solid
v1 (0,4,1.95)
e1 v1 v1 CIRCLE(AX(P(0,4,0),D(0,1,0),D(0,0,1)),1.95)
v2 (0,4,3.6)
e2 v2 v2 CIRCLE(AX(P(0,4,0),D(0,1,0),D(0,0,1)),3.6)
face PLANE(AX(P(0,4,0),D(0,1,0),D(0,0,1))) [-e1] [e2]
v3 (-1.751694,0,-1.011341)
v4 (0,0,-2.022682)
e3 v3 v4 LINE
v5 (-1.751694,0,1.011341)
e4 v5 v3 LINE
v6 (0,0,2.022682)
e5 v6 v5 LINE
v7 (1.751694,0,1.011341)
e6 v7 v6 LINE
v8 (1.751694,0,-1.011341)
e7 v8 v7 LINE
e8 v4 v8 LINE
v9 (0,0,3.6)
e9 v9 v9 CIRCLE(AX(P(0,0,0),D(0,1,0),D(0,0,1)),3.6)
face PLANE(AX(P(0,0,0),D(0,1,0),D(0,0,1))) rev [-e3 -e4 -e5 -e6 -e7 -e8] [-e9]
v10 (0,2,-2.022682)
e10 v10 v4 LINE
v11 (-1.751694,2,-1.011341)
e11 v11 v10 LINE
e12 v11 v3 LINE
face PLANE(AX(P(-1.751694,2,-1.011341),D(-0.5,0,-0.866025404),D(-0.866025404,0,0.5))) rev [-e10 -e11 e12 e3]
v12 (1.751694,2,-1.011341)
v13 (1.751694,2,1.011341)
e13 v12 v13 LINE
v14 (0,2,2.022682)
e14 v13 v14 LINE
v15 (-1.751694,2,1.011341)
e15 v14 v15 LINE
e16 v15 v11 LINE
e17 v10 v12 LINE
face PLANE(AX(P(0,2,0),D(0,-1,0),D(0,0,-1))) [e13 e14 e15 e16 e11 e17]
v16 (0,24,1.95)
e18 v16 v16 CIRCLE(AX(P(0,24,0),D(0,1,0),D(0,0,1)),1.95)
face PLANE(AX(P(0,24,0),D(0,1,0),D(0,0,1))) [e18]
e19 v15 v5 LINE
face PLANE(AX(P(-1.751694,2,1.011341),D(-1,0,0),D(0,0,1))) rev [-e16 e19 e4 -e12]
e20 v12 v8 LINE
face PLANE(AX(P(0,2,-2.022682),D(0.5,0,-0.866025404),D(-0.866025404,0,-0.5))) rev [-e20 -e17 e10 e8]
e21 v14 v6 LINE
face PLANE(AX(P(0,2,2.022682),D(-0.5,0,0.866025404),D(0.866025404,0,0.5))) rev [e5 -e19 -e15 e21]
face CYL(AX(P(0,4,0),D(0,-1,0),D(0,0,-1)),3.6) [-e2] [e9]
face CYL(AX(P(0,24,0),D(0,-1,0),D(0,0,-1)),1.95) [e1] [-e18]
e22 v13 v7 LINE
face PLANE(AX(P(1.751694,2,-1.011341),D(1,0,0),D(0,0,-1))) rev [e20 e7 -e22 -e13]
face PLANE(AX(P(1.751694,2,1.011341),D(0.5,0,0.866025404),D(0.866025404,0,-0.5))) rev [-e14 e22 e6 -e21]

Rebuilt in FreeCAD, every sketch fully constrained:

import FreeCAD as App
import Part
import Sketcher
Q = App.Units.Quantity

doc = App.newDocument("Part")
params = doc.addObject("Spreadsheet::Sheet", "Params")
for row, (alias, value) in enumerate([
    ("sketch1_diameter", "7.2 mm"),
    ("pad1_length", "4 mm"),
    ("sketch2_diameter", "3.9 mm"),
    ("pad2_length", "20 mm"),
    ("pocket1_length", "2 mm"),
], start=1):
    params.set(f"A{row}", alias)
    params.set(f"B{row}", "=" + value)
    params.setAlias(f"B{row}", alias)

body = doc.addObject("PartDesign::Body", "Body")

# Sketch on XZ plane
sketch1 = body.newObject("Sketcher::SketchObject", "Sketch")
sketch1.AttachmentSupport = (doc.getObject("XZ_Plane"), [""])
sketch1.MapMode = "FlatFace"
sketch1.addGeometry(Part.Circle(App.Vector(0, 0, 0), App.Vector(0, 0, 1), 3.6), False)
sketch1.addConstraint([
    Sketcher.Constraint("Coincident", 0, 3, -1, 1),
    Sketcher.Constraint("Diameter", 0, Q("7.2 mm")),
])
sketch1.setExpression("Constraints[1]", "Params.sketch1_diameter")
pad1 = body.newObject("PartDesign::Pad", "Pad")
pad1.Profile = sketch1
pad1.setExpression("Length", "Params.pad1_length")
pad1.Reversed = True

# Sketch on XZ plane
sketch2 = body.newObject("Sketcher::SketchObject", "Sketch001")
sketch2.AttachmentSupport = (doc.getObject("XZ_Plane"), [""])
sketch2.MapMode = "FlatFace"
sketch2.AttachmentOffset = App.Placement(App.Vector(0, 0, -4), App.Rotation())
sketch2.addGeometry(Part.Circle(App.Vector(0, 0, 0), App.Vector(0, 0, 1), 1.9), False)
sketch2.addConstraint([
    Sketcher.Constraint("Coincident", 0, 3, -1, 1),
    Sketcher.Constraint("Diameter", 0, Q("3.9 mm")),
])
sketch2.setExpression("Constraints[1]", "Params.sketch2_diameter")
pad2 = body.newObject("PartDesign::Pad", "Pad001")
pad2.Profile = sketch2
pad2.setExpression("Length", "Params.pad2_length")
pad2.Reversed = True

# Sketch on XZ plane
sketch3 = body.newObject("Sketcher::SketchObject", "Sketch002")
sketch3.AttachmentSupport = (doc.getObject("XZ_Plane"), [""])
sketch3.MapMode = "FlatFace"
sketch3.addGeometry([
    Part.LineSegment(App.Vector(0, 2, 0), App.Vector(-1.8, 1, 0)),  # 0
    Part.LineSegment(App.Vector(-1.8, 1, 0), App.Vector(-1.8, -1, 0)),  # 1
    Part.LineSegment(App.Vector(-1.8, -1, 0), App.Vector(0, -2, 0)),  # 2
    Part.LineSegment(App.Vector(0, -2, 0), App.Vector(1.8, -1, 0)),  # 3
    Part.LineSegment(App.Vector(1.8, -1, 0), App.Vector(1.8, 1, 0)),  # 4
    Part.LineSegment(App.Vector(1.8, 1, 0), App.Vector(0, 2, 0)),  # 5
], False)
sketch3.addConstraint([
    Sketcher.Constraint("Coincident", 0, 2, 1, 1),
    Sketcher.Constraint("Coincident", 1, 2, 2, 1),
    Sketcher.Constraint("Coincident", 2, 2, 3, 1),
    Sketcher.Constraint("Coincident", 3, 2, 4, 1),
    Sketcher.Constraint("Coincident", 4, 2, 5, 1),
    Sketcher.Constraint("Coincident", 5, 2, 0, 1),
    Sketcher.Constraint("Vertical", 1),
    Sketcher.Constraint("Vertical", 4),
    Sketcher.Constraint("Symmetric", 0, 2, 3, 2, -1, 1),
    Sketcher.Constraint("Symmetric", 2, 2, 5, 2, -1, 1),
    Sketcher.Constraint("PointOnObject", 2, 2, -2),
    Sketcher.Constraint("Parallel", 2, 5),
    Sketcher.Constraint("Horizontal", 1, 2, 3, 2),
    Sketcher.Constraint("Angle", 0, Q("-150 deg")),
    Sketcher.Constraint("DistanceY", 1, 2, 1, 1, Q("2.022682 mm")),
    Sketcher.Constraint("Distance", 0, Q("2.022682 mm")),
])
pocket1 = body.newObject("PartDesign::Pocket", "Pocket")
pocket1.Profile = sketch3
pocket1.setExpression("Length", "Params.pocket1_length")

doc.recompute()
